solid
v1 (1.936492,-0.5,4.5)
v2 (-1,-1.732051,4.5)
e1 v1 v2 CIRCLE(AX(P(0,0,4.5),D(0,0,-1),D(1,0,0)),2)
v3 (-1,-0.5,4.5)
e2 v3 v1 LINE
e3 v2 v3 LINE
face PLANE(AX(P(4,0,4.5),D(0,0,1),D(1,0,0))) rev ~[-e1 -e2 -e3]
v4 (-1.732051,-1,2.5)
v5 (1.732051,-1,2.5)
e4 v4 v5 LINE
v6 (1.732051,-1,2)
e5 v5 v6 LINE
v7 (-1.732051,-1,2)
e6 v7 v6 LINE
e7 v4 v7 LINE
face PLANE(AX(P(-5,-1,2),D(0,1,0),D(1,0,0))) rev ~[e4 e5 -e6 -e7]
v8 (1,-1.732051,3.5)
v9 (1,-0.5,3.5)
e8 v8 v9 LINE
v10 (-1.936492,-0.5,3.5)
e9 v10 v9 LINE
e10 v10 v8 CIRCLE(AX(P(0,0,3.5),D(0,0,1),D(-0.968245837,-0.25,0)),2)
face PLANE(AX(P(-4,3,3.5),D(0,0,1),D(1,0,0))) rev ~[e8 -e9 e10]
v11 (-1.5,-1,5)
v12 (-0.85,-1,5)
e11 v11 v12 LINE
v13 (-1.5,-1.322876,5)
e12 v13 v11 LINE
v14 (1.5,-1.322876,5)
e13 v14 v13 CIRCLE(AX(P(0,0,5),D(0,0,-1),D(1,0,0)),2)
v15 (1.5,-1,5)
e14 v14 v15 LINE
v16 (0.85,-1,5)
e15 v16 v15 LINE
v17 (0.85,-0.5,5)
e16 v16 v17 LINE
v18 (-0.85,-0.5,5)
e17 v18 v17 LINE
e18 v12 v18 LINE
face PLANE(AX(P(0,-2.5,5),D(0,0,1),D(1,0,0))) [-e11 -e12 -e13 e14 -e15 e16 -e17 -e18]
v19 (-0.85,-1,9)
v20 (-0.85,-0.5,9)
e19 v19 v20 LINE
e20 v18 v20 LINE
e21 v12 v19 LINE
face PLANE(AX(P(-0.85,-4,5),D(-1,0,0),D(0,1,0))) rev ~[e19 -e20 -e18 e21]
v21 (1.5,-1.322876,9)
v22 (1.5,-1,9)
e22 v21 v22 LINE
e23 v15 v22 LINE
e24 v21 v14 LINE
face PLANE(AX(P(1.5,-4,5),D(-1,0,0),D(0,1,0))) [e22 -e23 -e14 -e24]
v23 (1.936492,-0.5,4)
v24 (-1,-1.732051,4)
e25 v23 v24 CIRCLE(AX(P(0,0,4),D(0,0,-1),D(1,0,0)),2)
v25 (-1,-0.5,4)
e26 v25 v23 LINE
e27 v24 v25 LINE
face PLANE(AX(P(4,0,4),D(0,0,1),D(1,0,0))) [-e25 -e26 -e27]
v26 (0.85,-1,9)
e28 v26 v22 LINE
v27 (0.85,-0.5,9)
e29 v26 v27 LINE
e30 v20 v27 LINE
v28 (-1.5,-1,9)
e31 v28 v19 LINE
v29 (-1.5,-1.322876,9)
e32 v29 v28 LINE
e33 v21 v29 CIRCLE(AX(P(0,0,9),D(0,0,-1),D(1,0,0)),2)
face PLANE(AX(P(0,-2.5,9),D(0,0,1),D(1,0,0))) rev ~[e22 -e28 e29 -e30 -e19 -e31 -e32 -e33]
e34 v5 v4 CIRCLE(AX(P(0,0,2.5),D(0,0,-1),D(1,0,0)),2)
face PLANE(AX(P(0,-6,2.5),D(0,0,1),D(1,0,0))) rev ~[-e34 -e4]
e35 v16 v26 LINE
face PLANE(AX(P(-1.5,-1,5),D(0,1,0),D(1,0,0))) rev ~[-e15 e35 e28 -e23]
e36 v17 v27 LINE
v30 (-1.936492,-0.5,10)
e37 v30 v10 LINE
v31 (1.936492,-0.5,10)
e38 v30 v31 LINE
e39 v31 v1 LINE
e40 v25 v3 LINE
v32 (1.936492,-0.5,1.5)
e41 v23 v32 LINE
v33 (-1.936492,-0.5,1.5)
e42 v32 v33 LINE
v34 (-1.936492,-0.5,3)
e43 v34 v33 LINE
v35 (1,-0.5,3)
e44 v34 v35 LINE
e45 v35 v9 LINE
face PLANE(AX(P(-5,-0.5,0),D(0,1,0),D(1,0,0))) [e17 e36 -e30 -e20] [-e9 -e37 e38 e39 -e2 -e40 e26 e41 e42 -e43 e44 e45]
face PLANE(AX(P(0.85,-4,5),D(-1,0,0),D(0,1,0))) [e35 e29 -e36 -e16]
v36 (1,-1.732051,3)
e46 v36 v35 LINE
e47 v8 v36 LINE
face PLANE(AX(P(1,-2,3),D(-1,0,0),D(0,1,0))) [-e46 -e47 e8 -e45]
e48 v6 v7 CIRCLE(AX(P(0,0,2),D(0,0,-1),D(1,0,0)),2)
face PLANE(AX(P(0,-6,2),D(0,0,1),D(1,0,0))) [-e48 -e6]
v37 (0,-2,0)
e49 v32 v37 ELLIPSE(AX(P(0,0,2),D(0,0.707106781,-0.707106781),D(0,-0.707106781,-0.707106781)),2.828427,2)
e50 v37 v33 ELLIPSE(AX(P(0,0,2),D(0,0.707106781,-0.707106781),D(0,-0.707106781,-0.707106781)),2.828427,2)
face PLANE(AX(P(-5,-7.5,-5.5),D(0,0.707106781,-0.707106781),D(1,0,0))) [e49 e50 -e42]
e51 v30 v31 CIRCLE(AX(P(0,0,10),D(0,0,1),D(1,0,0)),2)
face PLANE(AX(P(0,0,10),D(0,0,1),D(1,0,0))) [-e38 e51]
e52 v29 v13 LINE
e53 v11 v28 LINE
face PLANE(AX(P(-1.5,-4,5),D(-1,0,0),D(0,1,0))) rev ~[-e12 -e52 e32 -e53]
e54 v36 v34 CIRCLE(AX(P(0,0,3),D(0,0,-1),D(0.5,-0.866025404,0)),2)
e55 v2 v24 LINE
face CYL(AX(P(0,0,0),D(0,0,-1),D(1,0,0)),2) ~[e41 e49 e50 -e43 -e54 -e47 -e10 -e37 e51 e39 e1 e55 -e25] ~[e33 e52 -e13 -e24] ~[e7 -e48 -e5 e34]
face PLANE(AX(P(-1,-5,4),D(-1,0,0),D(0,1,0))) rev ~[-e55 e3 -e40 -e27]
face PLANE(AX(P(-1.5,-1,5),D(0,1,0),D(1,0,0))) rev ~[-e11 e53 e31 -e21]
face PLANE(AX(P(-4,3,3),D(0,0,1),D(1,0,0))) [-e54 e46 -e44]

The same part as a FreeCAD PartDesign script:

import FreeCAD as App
import Part
import Sketcher
Q = App.Units.Quantity

doc = App.newDocument("Part")
body = doc.addObject("PartDesign::Body", "Body")

# Sketch on XY plane
sketch1 = body.newObject("Sketcher::SketchObject", "Sketch")
sketch1.AttachmentSupport = (doc.getObject("XY_Plane"), [""])
sketch1.MapMode = "FlatFace"
sketch1.addGeometry([
    Part.LineSegment(App.Vector(0, 10, 0), App.Vector(0, 0, 0)),
    Part.LineSegment(App.Vector(0, 0, 0), App.Vector(10, 0, 0)),
    Part.LineSegment(App.Vector(10, 0, 0), App.Vector(10, 10, 0)),
    Part.LineSegment(App.Vector(10, 10, 0), App.Vector(0, 10, 0)),
], False)
sketch1.addConstraint([
    Sketcher.Constraint("Coincident", 0, 2, 1, 1),
    Sketcher.Constraint("Coincident", 1, 2, 2, 1),
    Sketcher.Constraint("Coincident", 2, 2, 3, 1),
    Sketcher.Constraint("Coincident", 3, 2, 0, 1),
    Sketcher.Constraint("Vertical", 0),
    Sketcher.Constraint("Horizontal", 1),
    Sketcher.Constraint("Vertical", 2),
    Sketcher.Constraint("Horizontal", 3),
    Sketcher.Constraint("Coincident", 0, 2, -1, 1),
    Sketcher.Constraint("Equal", 3, 0),
    Sketcher.Constraint("DistanceX", 1, 1, 1, 2, Q("10 mm")),
])
pad1 = body.newObject("PartDesign::Pad", "Pad")
pad1.Profile = sketch1
pad1.Length = 10
body2 = doc.addObject("PartDesign::Body", "Body001")
doc.recompute()

body.Placement = App.Placement(App.Vector(-5, -7.5, -5.5), App.Rotation(App.Vector(1, 0, 0), 315))
boolean = body2.newObject("PartDesign::Boolean", "Boolean")
boolean.Type = "Fuse"
boolean.addObjects([body])
body3 = doc.addObject("PartDesign::Body", "Body002")

# Sketch on XY plane
sketch2 = body3.newObject("Sketcher::SketchObject", "Sketch001")
sketch2.AttachmentSupport = (doc.getObject("XY_Plane002"), [""])
sketch2.MapMode = "FlatFace"
sketch2.AttachmentOffset = App.Placement(App.Vector(0, 0, 4), App.Rotation())
sketch2.addGeometry([
    Part.LineSegment(App.Vector(-1, 5, 0), App.Vector(-1, -5, 0)),
    Part.LineSegment(App.Vector(-1, -5, 0), App.Vector(9, -5, 0)),
    Part.LineSegment(App.Vector(9, -5, 0), App.Vector(9, 5, 0)),
    Part.LineSegment(App.Vector(9, 5, 0), App.Vector(-1, 5, 0)),
], False)
sketch2.addConstraint([
    Sketcher.Constraint("Coincident", 0, 2, 1, 1),
    Sketcher.Constraint("Coincident", 1, 2, 2, 1),
    Sketcher.Constraint("Coincident", 2, 2, 3, 1),
    Sketcher.Constraint("Coincident", 3, 2, 0, 1),
    Sketcher.Constraint("Vertical", 0),
    Sketcher.Constraint("Horizontal", 1),
    Sketcher.Constraint("Vertical", 2),
    Sketcher.Constraint("Horizontal", 3),
    Sketcher.Constraint("Equal", 3, 0),
    Sketcher.Constraint("DistanceX", 1, 1, 1, 2, Q("10 mm")),
    Sketcher.Constraint("DistanceX", 0, 2, -1, 1, Q("1 mm")),
    Sketcher.Constraint("DistanceY", 0, 2, -1, 1, Q("5 mm")),
])
pad2 = body3.newObject("PartDesign::Pad", "Pad001")
pad2.Profile = sketch2
pad2.Length = 0.5
body4 = doc.addObject("PartDesign::Body", "Body003")

# Sketch on XY plane
sketch3 = body4.newObject("Sketcher::SketchObject", "Sketch002")
sketch3.AttachmentSupport = (doc.getObject("XY_Plane003"), [""])
sketch3.MapMode = "FlatFace"
sketch3.AttachmentOffset = App.Placement(App.Vector(0, 0, 3), App.Rotation())
sketch3.addGeometry([
    Part.LineSegment(App.Vector(-9, 8, 0), App.Vector(-9, -2, 0)),
    Part.LineSegment(App.Vector(-9, -2, 0), App.Vector(1, -2, 0)),
    Part.LineSegment(App.Vector(1, -2, 0), App.Vector(1, 8, 0)),
    Part.LineSegment(App.Vector(1, 8, 0), App.Vector(-9, 8, 0)),
], False)
sketch3.addConstraint([
    Sketcher.Constraint("Coincident", 0, 2, 1, 1),
    Sketcher.Constraint("Coincident", 1, 2, 2, 1),
    Sketcher.Constraint("Coincident", 2, 2, 3, 1),
    Sketcher.Constraint("Coincident", 3, 2, 0, 1),
    Sketcher.Constraint("Vertical", 0),
    Sketcher.Constraint("Horizontal", 1),
    Sketcher.Constraint("Vertical", 2),
    Sketcher.Constraint("Horizontal", 3),
    Sketcher.Constraint("Equal", 3, 0),
    Sketcher.Constraint("DistanceX", 1, 1, 1, 2, Q("10 mm")),
    Sketcher.Constraint("DistanceX", 0, 2, -1, 1, Q("9 mm")),
    Sketcher.Constraint("DistanceY", 0, 2, -1, 1, Q("2 mm")),
])
pad3 = body4.newObject("PartDesign::Pad", "Pad002")
pad3.Profile = sketch3
pad3.Length = 0.5
body5 = doc.addObject("PartDesign::Body", "Body004")
body5.AllowCompound = True

# Sketch on XY plane
sketch4 = body5.newObject("Sketcher::SketchObject", "Sketch003")
sketch4.AttachmentSupport = (doc.getObject("XY_Plane004"), [""])
sketch4.MapMode = "FlatFace"
sketch4.AttachmentOffset = App.Placement(App.Vector(0, 0, 2), App.Rotation())
sketch4.addGeometry([
    Part.LineSegment(App.Vector(-5, -1, 0), App.Vector(-5, -11, 0)),
    Part.LineSegment(App.Vector(-5, -11, 0), App.Vector(5, -11, 0)),
    Part.LineSegment(App.Vector(5, -11, 0), App.Vector(5, -1, 0)),
    Part.LineSegment(App.Vector(5, -1, 0), App.Vector(-5, -1, 0)),
], False)
sketch4.addConstraint([
    Sketcher.Constraint("Coincident", 0, 2, 1, 1),
    Sketcher.Constraint("Coincident", 1, 2, 2, 1),
    Sketcher.Constraint("Coincident", 2, 2, 3, 1),
    Sketcher.Constraint("Coincident", 3, 2, 0, 1),
    Sketcher.Constraint("Vertical", 0),
    Sketcher.Constraint("Horizontal", 1),
    Sketcher.Constraint("Vertical", 2),
    Sketcher.Constraint("Horizontal", 3),
    Sketcher.Constraint("Equal", 3, 0),
    Sketcher.Constraint("DistanceX", 1, 1, 1, 2, Q("10 mm")),
    Sketcher.Constraint("DistanceX", 0, 2, -1, 1, Q("5 mm")),
    Sketcher.Constraint("DistanceY", 0, 2, -1, 1, Q("11 mm")),
])
pad4 = body5.newObject("PartDesign::Pad", "Pad003")
pad4.Profile = sketch4
pad4.Length = 0.5
doc.recompute()

boolean2 = body5.newObject("PartDesign::Boolean", "Boolean001")
boolean2.Type = "Fuse"
boolean2.addObjects([body3])
doc.recompute()

boolean3 = body5.newObject("PartDesign::Boolean", "Boolean002")
boolean3.Type = "Fuse"
boolean3.addObjects([body4])
body6 = doc.addObject("PartDesign::Body", "Body005")

# Sketch on XY plane
sketch5 = body6.newObject("Sketcher::SketchObject", "Sketch004")
sketch5.AttachmentSupport = (doc.getObject("XY_Plane005"), [""])
sketch5.MapMode = "FlatFace"
sketch5.AttachmentOffset = App.Placement(App.Vector(0, 0, 4), App.Rotation())
sketch5.addGeometry([
    Part.LineSegment(App.Vector(-0.8, 6, 0), App.Vector(-0.8, -4, 0)),
    Part.LineSegment(App.Vector(-0.8, -4, 0), App.Vector(0.8, -4, 0)),
    Part.LineSegment(App.Vector(0.8, -4, 0), App.Vector(0.8, 6, 0)),
    Part.LineSegment(App.Vector(0.8, 6, 0), App.Vector(-0.8, 6, 0)),
], False)
sketch5.addConstraint([
    Sketcher.Constraint("Coincident", 0, 2, 1, 1),
    Sketcher.Constraint("Coincident", 1, 2, 2, 1),
    Sketcher.Constraint("Coincident", 2, 2, 3, 1),
    Sketcher.Constraint("Coincident", 3, 2, 0, 1),
    Sketcher.Constraint("Vertical", 0),
    Sketcher.Constraint("Horizontal", 1),
    Sketcher.Constraint("Vertical", 2),
    Sketcher.Constraint("Horizontal", 3),
    Sketcher.Constraint("DistanceY", 0, 2, 0, 1, Q("10 mm")),
    Sketcher.Constraint("DistanceX", 1, 1, 1, 2, Q("1.7 mm")),
    Sketcher.Constraint("DistanceY", 0, 2, -1, 1, Q("4 mm")),
    Sketcher.Constraint("DistanceX", 0, 2, -1, 1, Q("0.85 mm")),
])
pad5 = body6.newObject("PartDesign::Pad", "Pad004")
pad5.Profile = sketch5
pad5.Length = 4
body7 = doc.addObject("PartDesign::Body", "Body006")

# Sketch on XY plane
sketch6 = body7.newObject("Sketcher::SketchObject", "Sketch005")
sketch6.AttachmentSupport = (doc.getObject("XY_Plane006"), [""])
sketch6.MapMode = "FlatFace"
sketch6.AttachmentOffset = App.Placement(App.Vector(0, 0, 4), App.Rotation())
sketch6.addGeometry([
    Part.LineSegment(App.Vector(-1.5, -1, 0), App.Vector(-1.5, -4, 0)),
    Part.LineSegment(App.Vector(-1.5, -4, 0), App.Vector(1.5, -4, 0)),
    Part.LineSegment(App.Vector(1.5, -4, 0), App.Vector(1.5, -1, 0)),
    Part.LineSegment(App.Vector(1.5, -1, 0), App.Vector(-1.5, -1, 0)),
], False)
sketch6.addConstraint([
    Sketcher.Constraint("Coincident", 0, 2, 1, 1),
    Sketcher.Constraint("Coincident", 1, 2, 2, 1),
    Sketcher.Constraint("Coincident", 2, 2, 3, 1),
    Sketcher.Constraint("Coincident", 3, 2, 0, 1),
    Sketcher.Constraint("Vertical", 0),
    Sketcher.Constraint("Horizontal", 1),
    Sketcher.Constraint("Vertical", 2),
    Sketcher.Constraint("Horizontal", 3),
    Sketcher.Constraint("Equal", 3, 0),
    Sketcher.Constraint("DistanceX", 1, 1, 1, 2, Q("3 mm")),
    Sketcher.Constraint("DistanceY", 0, 2, -1, 1, Q("4 mm")),
    Sketcher.Constraint("DistanceX", 0, 2, -1, 1, Q("1.5 mm")),
])
pad6 = body7.newObject("PartDesign::Pad", "Pad005")
pad6.Profile = sketch6
pad6.Length = 4
doc.recompute()

boolean4 = body7.newObject("PartDesign::Boolean", "Boolean003")
boolean4.Type = "Fuse"
boolean4.addObjects([body6])
body8 = doc.addObject("PartDesign::Body", "Body007")
doc.recompute()

body7.Placement = App.Placement(App.Vector(0, 0, 1), App.Rotation(App.Vector(0, 0, 1), 0))
boolean5 = body8.newObject("PartDesign::Boolean", "Boolean004")
boolean5.Type = "Fuse"
boolean5.addObjects([body7])
body9 = doc.addObject("PartDesign::Body", "Body008")

# Sketch on XY plane
sketch7 = body9.newObject("Sketcher::SketchObject", "Sketch006")
sketch7.AttachmentSupport = (doc.getObject("XY_Plane008"), [""])
sketch7.MapMode = "FlatFace"
sketch7.addGeometry([
    Part.LineSegment(App.Vector(-5, 10, 0), App.Vector(-5, 0, 0)),
    Part.LineSegment(App.Vector(-5, 0, 0), App.Vector(5, 0, 0)),
    Part.LineSegment(App.Vector(5, 0, 0), App.Vector(5, 10, 0)),
    Part.LineSegment(App.Vector(5, 10, 0), App.Vector(-5, 10, 0)),
], False)
sketch7.addConstraint([
    Sketcher.Constraint("Coincident", 0, 2, 1, 1),
    Sketcher.Constraint("Coincident", 1, 2, 2, 1),
    Sketcher.Constraint("Coincident", 2, 2, 3, 1),
    Sketcher.Constraint("Coincident", 3, 2, 0, 1),
    Sketcher.Constraint("Vertical", 0),
    Sketcher.Constraint("Horizontal", 1),
    Sketcher.Constraint("Vertical", 2),
    Sketcher.Constraint("Horizontal", 3),
    Sketcher.Constraint("Equal", 3, 0),
    Sketcher.Constraint("DistanceX", 1, 1, 1, 2, Q("10 mm")),
    Sketcher.Constraint("DistanceX", 0, 2, -1, 1, Q("5 mm")),
    Sketcher.Constraint("DistanceY", 0, 2, -1, 1, Q("0.5 mm")),
])
pad7 = body9.newObject("PartDesign::Pad", "Pad006")
pad7.Profile = sketch7
pad7.Length = 10
body10 = doc.addObject("PartDesign::Body", "Body009")

# Sketch on XY plane
sketch8 = body10.newObject("Sketcher::SketchObject", "Sketch007")
sketch8.AttachmentSupport = (doc.getObject("XY_Plane009"), [""])
sketch8.MapMode = "FlatFace"
sketch8.addGeometry(Part.Circle(App.Vector(0, 0, 0), App.Vector(0, 0, 1), 2), False)
sketch8.addConstraint([
    Sketcher.Constraint("Coincident", 0, 3, -1, 1),
    Sketcher.Constraint("Diameter", 0, Q("4 mm")),
])
pad8 = body10.newObject("PartDesign::Pad", "Pad007")
pad8.Profile = sketch8
pad8.Length = 10
doc.recompute()

boolean6 = body10.newObject("PartDesign::Boolean", "Boolean005")
boolean6.Type = "Cut"
boolean6.addObjects([body9])
doc.recompute()

boolean7 = body10.newObject("PartDesign::Boolean", "Boolean006")
boolean7.Type = "Cut"
boolean7.addObjects([body8])
doc.recompute()

boolean8 = body10.newObject("PartDesign::Boolean", "Boolean007")
boolean8.Type = "Cut"
boolean8.addObjects([body5])
doc.recompute()

boolean9 = body10.newObject("PartDesign::Boolean", "Boolean008")
boolean9.Type = "Cut"
boolean9.addObjects([body2])

doc.recompute()
